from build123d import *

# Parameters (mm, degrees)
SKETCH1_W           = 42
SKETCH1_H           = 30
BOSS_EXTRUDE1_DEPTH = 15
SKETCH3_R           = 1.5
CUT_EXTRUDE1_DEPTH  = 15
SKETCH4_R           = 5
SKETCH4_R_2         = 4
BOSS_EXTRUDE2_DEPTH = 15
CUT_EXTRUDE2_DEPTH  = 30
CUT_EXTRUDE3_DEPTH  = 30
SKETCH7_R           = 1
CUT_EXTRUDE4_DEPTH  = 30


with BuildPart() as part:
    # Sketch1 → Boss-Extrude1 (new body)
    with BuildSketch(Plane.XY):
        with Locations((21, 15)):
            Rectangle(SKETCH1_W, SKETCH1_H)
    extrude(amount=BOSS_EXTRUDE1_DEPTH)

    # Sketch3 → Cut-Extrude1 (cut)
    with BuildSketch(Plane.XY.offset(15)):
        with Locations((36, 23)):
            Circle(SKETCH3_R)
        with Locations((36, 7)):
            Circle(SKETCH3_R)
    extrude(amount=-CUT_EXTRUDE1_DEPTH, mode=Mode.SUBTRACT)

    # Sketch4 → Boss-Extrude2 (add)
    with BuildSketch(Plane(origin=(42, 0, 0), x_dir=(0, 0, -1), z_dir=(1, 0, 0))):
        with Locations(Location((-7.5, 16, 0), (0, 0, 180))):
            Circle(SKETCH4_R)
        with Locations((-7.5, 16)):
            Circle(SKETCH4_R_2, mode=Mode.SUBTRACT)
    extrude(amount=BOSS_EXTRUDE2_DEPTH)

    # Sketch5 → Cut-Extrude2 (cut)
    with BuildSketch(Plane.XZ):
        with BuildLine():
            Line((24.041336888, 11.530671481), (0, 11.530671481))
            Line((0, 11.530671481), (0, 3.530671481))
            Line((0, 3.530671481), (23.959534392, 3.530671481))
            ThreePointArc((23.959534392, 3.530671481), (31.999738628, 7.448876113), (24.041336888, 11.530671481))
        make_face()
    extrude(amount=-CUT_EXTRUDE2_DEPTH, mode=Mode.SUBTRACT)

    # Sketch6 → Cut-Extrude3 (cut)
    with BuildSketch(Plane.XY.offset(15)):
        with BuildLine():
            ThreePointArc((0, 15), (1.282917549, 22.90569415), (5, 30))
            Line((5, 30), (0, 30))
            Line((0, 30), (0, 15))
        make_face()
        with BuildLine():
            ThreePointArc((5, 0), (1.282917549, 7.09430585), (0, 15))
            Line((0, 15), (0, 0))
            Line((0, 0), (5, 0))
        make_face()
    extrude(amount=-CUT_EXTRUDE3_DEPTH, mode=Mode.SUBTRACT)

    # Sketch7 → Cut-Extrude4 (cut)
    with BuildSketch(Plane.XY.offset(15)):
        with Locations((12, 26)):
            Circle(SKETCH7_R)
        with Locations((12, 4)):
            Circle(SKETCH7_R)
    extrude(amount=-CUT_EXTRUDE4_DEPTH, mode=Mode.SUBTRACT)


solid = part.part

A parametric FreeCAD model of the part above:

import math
import FreeCAD as App
import Part
import Sketcher
from FreeCAD import Vector


def add_polygon(sketch, points):
    """Adds a closed chain of lines whose ends are joined by coincident constraints."""
    first, n = sketch.GeometryCount, len(points)
    for a, b in zip(points, points[1:] + points[:1]):
        sketch.addGeometry(Part.LineSegment(App.Vector(*a, 0), App.Vector(*b, 0)), False)
    for i in range(n):
        sketch.addConstraint(Sketcher.Constraint("Coincident", first + i, 2, first + (i + 1) % n, 1))

doc = App.newDocument("Part")
params = doc.addObject("Spreadsheet::Sheet", "Params")
for row, (alias, value) in enumerate([
    ("sketch1_width", "42 mm"),
    ("sketch1_height", "30 mm"),
    ("pad1_length", "15 mm"),
    ("sketch2_diameter", "3 mm"),
    ("pocket1_length", "15 mm"),
    ("sketch3_diameter", "10 mm"),
    ("sketch3_diameter2", "8 mm"),
    ("pad2_length", "15 mm"),
    ("sketch4_radius", "5 mm"),
    ("sketch4_height", "8 mm"),
    ("pocket2_length", "30 mm"),
    ("sketch5_radius", "25 mm"),
    ("sketch5_width", "5 mm"),
    ("pocket3_length", "30 mm"),
    ("sketch6_diameter", "2 mm"),
    ("pocket4_length", "30 mm"),
], start=1):
    params.set(f"A{row}", alias)
    params.set(f"B{row}", "=" + value)
    params.setAlias(f"B{row}", alias)

body = doc.addObject("PartDesign::Body", "Body")

sketch1 = body.newObject("Sketcher::SketchObject", "Sketch")
sketch1.AttachmentSupport = (doc.getObject("XY_Plane"), [""])
sketch1.MapMode = "FlatFace"
add_polygon(sketch1, [(0, 30), (0, 0), (42, 0), (42, 30)])
sketch1.addConstraint(Sketcher.Constraint("Vertical", 0))
sketch1.addConstraint(Sketcher.Constraint("Horizontal", 1))
sketch1.addConstraint(Sketcher.Constraint("Vertical", 2))
sketch1.addConstraint(Sketcher.Constraint("Horizontal", 3))
sketch1.addConstraint(Sketcher.Constraint("Coincident", 0, 2, -1, 1))
sketch1.addConstraint(Sketcher.Constraint("DistanceX", 1, 1, 1, 2, 42.0))
sketch1.addConstraint(Sketcher.Constraint("DistanceY", 0, 2, 0, 1, 30.0))
sketch1.setExpression("Constraints[9]", "Params.sketch1_width")
sketch1.setExpression("Constraints[10]", "Params.sketch1_height")
pad1 = body.newObject("PartDesign::Pad", "Pad")
pad1.Profile = sketch1
pad1.setExpression("Length", "Params.pad1_length")

sketch2 = body.newObject("Sketcher::SketchObject", "Sketch001")
sketch2.AttachmentSupport = (doc.getObject("XY_Plane"), [""])
sketch2.MapMode = "FlatFace"
sketch2.AttachmentOffset = App.Placement(Vector(0, 0, 15), App.Rotation())
sketch2.addGeometry(Part.Circle(Vector(36, 23, 0), Vector(0, 0, 1), 1.5), False)
sketch2.addGeometry(Part.Circle(Vector(36, 7, 0), Vector(0, 0, 1), 1.5), False)
sketch2.addConstraint(Sketcher.Constraint("Equal", 0, 1))
sketch2.addConstraint(Sketcher.Constraint("Vertical", 0, 3, 1, 3))
sketch2.addConstraint(Sketcher.Constraint("Diameter", 0, 3.0))
sketch2.addConstraint(Sketcher.Constraint("DistanceX", -1, 1, 0, 3, 36.0))
sketch2.addConstraint(Sketcher.Constraint("DistanceY", -1, 1, 0, 3, 23.0))
sketch2.addConstraint(Sketcher.Constraint("DistanceY", -1, 1, 1, 3, 7.0))
sketch2.setExpression("Constraints[2]", "Params.sketch2_diameter")
pocket1 = body.newObject("PartDesign::Pocket", "Pocket")
pocket1.Profile = sketch2
pocket1.setExpression("Length", "Params.pocket1_length")

sketch3 = body.newObject("Sketcher::SketchObject", "Sketch002")
sketch3.AttachmentSupport = (doc.getObject("YZ_Plane"), [""])
sketch3.MapMode = "FlatFace"
sketch3.AttachmentOffset = App.Placement(Vector(0, 0, 42), App.Rotation())
sketch3.addGeometry(Part.Circle(Vector(16, 7.5, 0), Vector(0, 0, 1), 5), False)
sketch3.addGeometry(Part.Circle(Vector(16, 7.5, 0), Vector(0, 0, 1), 4), False)
sketch3.addConstraint(Sketcher.Constraint("Coincident", 1, 3, 0, 3))
sketch3.addConstraint(Sketcher.Constraint("Diameter", 0, 10.0))
sketch3.addConstraint(Sketcher.Constraint("Diameter", 1, 8.0))
sketch3.addConstraint(Sketcher.Constraint("DistanceX", -1, 1, 0, 3, 16.0))
sketch3.addConstraint(Sketcher.Constraint("DistanceY", -1, 1, 0, 3, 7.5))
sketch3.setExpression("Constraints[1]", "Params.sketch3_diameter")
sketch3.setExpression("Constraints[2]", "Params.sketch3_diameter2")
pad2 = body.newObject("PartDesign::Pad", "Pad001")
pad2.Profile = sketch3
pad2.setExpression("Length", "Params.pad2_length")

sketch4 = body.newObject("Sketcher::SketchObject", "Sketch003")
sketch4.AttachmentSupport = (doc.getObject("XZ_Plane"), [""])
sketch4.MapMode = "FlatFace"
sketch4.addGeometry(Part.LineSegment(Vector(24, 12, 0), Vector(0, 12, 0)), False)
sketch4.addGeometry(Part.LineSegment(Vector(0, 12, 0), Vector(0, 4, 0)), False)
sketch4.addGeometry(Part.LineSegment(Vector(0, 4, 0), Vector(24, 4, 0)), False)
sketch4.addGeometry(Part.ArcOfCircle(Part.Circle(Vector(27, 8, 0), Vector(0, 0, 1), 5), math.radians(-127), math.radians(126)), False)
sketch4.addConstraint(Sketcher.Constraint("Coincident", 0, 2, 1, 1))
sketch4.addConstraint(Sketcher.Constraint("Coincident", 1, 2, 2, 1))
sketch4.addConstraint(Sketcher.Constraint("Coincident", 2, 2, 3, 1))
sketch4.addConstraint(Sketcher.Constraint("Coincident", 3, 2, 0, 1))
sketch4.addConstraint(Sketcher.Constraint("Horizontal", 0))
sketch4.addConstraint(Sketcher.Constraint("Vertical", 1))
sketch4.addConstraint(Sketcher.Constraint("Horizontal", 2))
sketch4.addConstraint(Sketcher.Constraint("PointOnObject", 0, 2, -2))
sketch4.addConstraint(Sketcher.Constraint("Radius", 3, 5.0))
sketch4.addConstraint(Sketcher.Constraint("DistanceY", 1, 2, 1, 1, 8.0))
sketch4.addConstraint(Sketcher.Constraint("DistanceX", -1, 1, 3, 3, 27.0))
sketch4.addConstraint(Sketcher.Constraint("DistanceY", -1, 1, 3, 3, 7.5))
sketch4.addConstraint(Sketcher.Constraint("DistanceX", 0, 2, 0, 1, 24.041337))
sketch4.setExpression("Constraints[8]", "Params.sketch4_radius")
sketch4.setExpression("Constraints[9]", "Params.sketch4_height")
pocket2 = body.newObject("PartDesign::Pocket", "Pocket001")
pocket2.Profile = sketch4
pocket2.setExpression("Length", "Params.pocket2_length")

sketch5 = body.newObject("Sketcher::SketchObject", "Sketch004")
sketch5.AttachmentSupport = (doc.getObject("XY_Plane"), [""])
sketch5.MapMode = "FlatFace"
sketch5.AttachmentOffset = App.Placement(Vector(0, 0, 15), App.Rotation())
sketch5.addGeometry(Part.ArcOfCircle(Part.Circle(Vector(25, 15, 0), Vector(0, 0, 1), 25), math.radians(143), math.radians(180)), False)
sketch5.addGeometry(Part.LineSegment(Vector(5, 30, 0), Vector(0, 30, 0)), False)
sketch5.addGeometry(Part.LineSegment(Vector(0, 30, 0), Vector(0, 15, 0)), False)
sketch5.addGeometry(Part.ArcOfCircle(Part.Circle(Vector(25, 15, 0), Vector(0, 0, 1), 25), math.radians(-180), math.radians(-143)), False)
sketch5.addGeometry(Part.LineSegment(Vector(0, 15, 0), Vector(0, 0, 0)), False)
sketch5.addGeometry(Part.LineSegment(Vector(0, 0, 0), Vector(5, 0, 0)), False)
sketch5.addConstraint(Sketcher.Constraint("Coincident", 0, 1, 1, 1))
sketch5.addConstraint(Sketcher.Constraint("Coincident", 1, 2, 2, 1))
sketch5.addConstraint(Sketcher.Constraint("Tangent", 2, 2, 0, 2))
sketch5.addConstraint(Sketcher.Constraint("Tangent", 3, 1, 4, 1))
sketch5.addConstraint(Sketcher.Constraint("Coincident", 4, 2, 5, 1))
sketch5.addConstraint(Sketcher.Constraint("Coincident", 5, 2, 3, 2))
sketch5.addConstraint(Sketcher.Constraint("Horizontal", 1))
sketch5.addConstraint(Sketcher.Constraint("Vertical", 2))
sketch5.addConstraint(Sketcher.Constraint("Vertical", 4))
sketch5.addConstraint(Sketcher.Constraint("Horizontal", 5))
sketch5.addConstraint(Sketcher.Constraint("Coincident", 4, 2, -1, 1))
sketch5.addConstraint(Sketcher.Constraint("Coincident", 3, 3, 0, 3))
sketch5.addConstraint(Sketcher.Constraint("Equal", 0, 3))
sketch5.addConstraint(Sketcher.Constraint("Vertical", 0, 1, 5, 2))
sketch5.addConstraint(Sketcher.Constraint("Radius", 0, 25.0))
sketch5.addConstraint(Sketcher.Constraint("DistanceX", 1, 2, 1, 1, 5.0))
sketch5.setExpression("Constraints[14]", "Params.sketch5_radius")
sketch5.setExpression("Constraints[15]", "Params.sketch5_width")
pocket3 = body.newObject("PartDesign::Pocket", "Pocket002")
pocket3.Profile = sketch5
pocket3.setExpression("Length", "Params.pocket3_length")

sketch6 = body.newObject("Sketcher::SketchObject", "Sketch005")
sketch6.AttachmentSupport = (doc.getObject("XY_Plane"), [""])
sketch6.MapMode = "FlatFace"
sketch6.AttachmentOffset = App.Placement(Vector(0, 0, 15), App.Rotation())
sketch6.addGeometry(Part.Circle(Vector(12, 26, 0), Vector(0, 0, 1), 1), False)
sketch6.addGeometry(Part.Circle(Vector(12, 4, 0), Vector(0, 0, 1), 1), False)
sketch6.addConstraint(Sketcher.Constraint("Equal", 0, 1))
sketch6.addConstraint(Sketcher.Constraint("Vertical", 0, 3, 1, 3))
sketch6.addConstraint(Sketcher.Constraint("Diameter", 0, 2.0))
sketch6.addConstraint(Sketcher.Constraint("DistanceX", -1, 1, 0, 3, 12.0))
sketch6.addConstraint(Sketcher.Constraint("DistanceY", -1, 1, 0, 3, 26.0))
sketch6.addConstraint(Sketcher.Constraint("DistanceY", -1, 1, 1, 3, 4.0))
sketch6.setExpression("Constraints[2]", "Params.sketch6_diameter")
pocket4 = body.newObject("PartDesign::Pocket", "Pocket003")
pocket4.Profile = sketch6
pocket4.setExpression("Length", "Params.pocket4_length")

doc.recompute()
